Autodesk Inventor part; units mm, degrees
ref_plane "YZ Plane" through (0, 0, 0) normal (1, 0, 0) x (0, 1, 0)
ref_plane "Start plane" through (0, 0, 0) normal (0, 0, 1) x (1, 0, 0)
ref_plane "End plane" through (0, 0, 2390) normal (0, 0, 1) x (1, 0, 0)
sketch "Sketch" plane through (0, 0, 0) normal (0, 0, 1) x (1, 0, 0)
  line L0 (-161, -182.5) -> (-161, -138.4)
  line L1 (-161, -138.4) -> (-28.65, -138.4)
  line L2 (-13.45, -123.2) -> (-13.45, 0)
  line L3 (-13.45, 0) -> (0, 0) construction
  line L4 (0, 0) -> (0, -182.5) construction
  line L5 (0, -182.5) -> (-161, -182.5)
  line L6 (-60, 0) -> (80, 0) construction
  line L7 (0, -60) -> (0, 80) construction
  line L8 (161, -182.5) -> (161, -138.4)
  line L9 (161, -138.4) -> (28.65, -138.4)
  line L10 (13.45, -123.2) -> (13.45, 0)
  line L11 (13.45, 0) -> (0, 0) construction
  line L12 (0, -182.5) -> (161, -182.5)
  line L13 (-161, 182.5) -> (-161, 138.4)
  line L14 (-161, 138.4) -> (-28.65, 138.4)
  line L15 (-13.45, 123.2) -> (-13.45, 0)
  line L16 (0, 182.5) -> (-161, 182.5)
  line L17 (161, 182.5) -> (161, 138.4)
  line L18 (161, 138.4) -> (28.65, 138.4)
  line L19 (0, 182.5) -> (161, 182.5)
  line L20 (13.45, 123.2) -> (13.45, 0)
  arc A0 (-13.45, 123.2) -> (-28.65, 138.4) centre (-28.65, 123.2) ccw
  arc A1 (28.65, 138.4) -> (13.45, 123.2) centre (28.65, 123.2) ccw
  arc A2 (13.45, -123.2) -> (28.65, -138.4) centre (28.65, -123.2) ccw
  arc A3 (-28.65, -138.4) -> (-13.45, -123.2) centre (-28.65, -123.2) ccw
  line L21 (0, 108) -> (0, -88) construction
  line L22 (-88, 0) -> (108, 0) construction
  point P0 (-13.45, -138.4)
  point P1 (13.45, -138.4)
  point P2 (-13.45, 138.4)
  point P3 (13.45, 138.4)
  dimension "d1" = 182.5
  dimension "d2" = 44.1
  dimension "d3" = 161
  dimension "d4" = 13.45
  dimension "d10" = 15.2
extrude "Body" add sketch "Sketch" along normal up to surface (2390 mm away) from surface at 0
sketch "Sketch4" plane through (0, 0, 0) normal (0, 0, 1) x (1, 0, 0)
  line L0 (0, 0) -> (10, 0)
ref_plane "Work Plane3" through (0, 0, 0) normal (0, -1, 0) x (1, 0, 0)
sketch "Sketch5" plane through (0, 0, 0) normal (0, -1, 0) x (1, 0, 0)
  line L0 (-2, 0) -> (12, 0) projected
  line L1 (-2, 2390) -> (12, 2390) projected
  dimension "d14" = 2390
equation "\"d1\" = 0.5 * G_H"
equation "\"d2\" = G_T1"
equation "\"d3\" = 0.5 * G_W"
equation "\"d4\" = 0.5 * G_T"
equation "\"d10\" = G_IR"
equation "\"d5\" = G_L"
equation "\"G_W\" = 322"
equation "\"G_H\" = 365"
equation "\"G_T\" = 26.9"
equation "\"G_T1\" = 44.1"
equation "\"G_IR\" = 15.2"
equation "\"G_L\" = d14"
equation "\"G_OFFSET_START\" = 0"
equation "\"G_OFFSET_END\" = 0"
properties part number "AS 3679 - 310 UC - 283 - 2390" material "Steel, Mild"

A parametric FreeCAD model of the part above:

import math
import FreeCAD as App
import Part
import Sketcher

doc = App.newDocument("Part")
body = doc.addObject("PartDesign::Body", "Body")

# Sketch on XY plane
sketch1 = body.newObject("Sketcher::SketchObject", "Sketch")
sketch1.AttachmentSupport = (doc.getObject("XY_Plane"), [""])
sketch1.MapMode = "FlatFace"
sketch1.addGeometry([
    Part.LineSegment(App.Vector(-161, -138, 0), App.Vector(-161, -182, 0)),  # 0
    Part.LineSegment(App.Vector(-161, -182, 0), App.Vector(161, -182, 0)),  # 1
    Part.LineSegment(App.Vector(161, -182, 0), App.Vector(161, -138, 0)),  # 2
    Part.LineSegment(App.Vector(161, -138, 0), App.Vector(29, -138, 0)),  # 3
    Part.ArcOfCircle(Part.Circle(App.Vector(29, -123, 0), App.Vector(0, 0, 1), 15), math.radians(180), math.radians(270)),  # 4
    Part.LineSegment(App.Vector(13, -123, 0), App.Vector(13, 123, 0)),  # 5
    Part.ArcOfCircle(Part.Circle(App.Vector(29, 123, 0), App.Vector(0, 0, 1), 15), math.radians(90), math.radians(180)),  # 6
    Part.LineSegment(App.Vector(29, 138, 0), App.Vector(161, 138, 0)),  # 7
    Part.LineSegment(App.Vector(161, 138, 0), App.Vector(161, 182, 0)),  # 8
    Part.LineSegment(App.Vector(161, 182, 0), App.Vector(-161, 182, 0)),  # 9
    Part.LineSegment(App.Vector(-161, 182, 0), App.Vector(-161, 138, 0)),  # 10
    Part.LineSegment(App.Vector(-161, 138, 0), App.Vector(-29, 138, 0)),  # 11
    Part.ArcOfCircle(Part.Circle(App.Vector(-29, 123, 0), App.Vector(0, 0, 1), 15), math.radians(0), math.radians(90)),  # 12
    Part.LineSegment(App.Vector(-13, 123, 0), App.Vector(-13, -123, 0)),  # 13
    Part.ArcOfCircle(Part.Circle(App.Vector(-29, -123, 0), App.Vector(0, 0, 1), 15), math.radians(-90), math.radians(0)),  # 14
    Part.LineSegment(App.Vector(-29, -138, 0), App.Vector(-161, -138, 0)),  # 15
], False)
sketch1.addConstraint([
    Sketcher.Constraint("Coincident", 0, 2, 1, 1),
    Sketcher.Constraint("Coincident", 1, 2, 2, 1),
    Sketcher.Constraint("Coincident", 2, 2, 3, 1),
    Sketcher.Constraint("Tangent", 3, 2, 4, 2),
    Sketcher.Constraint("Tangent", 4, 1, 5, 1),
    Sketcher.Constraint("Tangent", 5, 2, 6, 2),
    Sketcher.Constraint("Tangent", 6, 1, 7, 1),
    Sketcher.Constraint("Coincident", 7, 2, 8, 1),
    Sketcher.Constraint("Coincident", 8, 2, 9, 1),
    Sketcher.Constraint("Coincident", 9, 2, 10, 1),
    Sketcher.Constraint("Coincident", 10, 2, 11, 1),
    Sketcher.Constraint("Tangent", 11, 2, 12, 2),
    Sketcher.Constraint("Tangent", 12, 1, 13, 1),
    Sketcher.Constraint("Tangent", 13, 2, 14, 2),
    Sketcher.Constraint("Tangent", 14, 1, 15, 1),
    Sketcher.Constraint("Coincident", 15, 2, 0, 1),
    Sketcher.Constraint("Vertical", 0),
    Sketcher.Constraint("Horizontal", 1),
    Sketcher.Constraint("Vertical", 2),
    Sketcher.Constraint("Horizontal", 3),
    Sketcher.Constraint("Vertical", 5),
    Sketcher.Constraint("Horizontal", 7),
    Sketcher.Constraint("Vertical", 8),
    Sketcher.Constraint("Horizontal", 9),
    Sketcher.Constraint("Vertical", 10),
    Sketcher.Constraint("Horizontal", 11),
    Sketcher.Constraint("Vertical", 13),
    Sketcher.Constraint("Horizontal", 15),
    Sketcher.Constraint("Equal", 4, 6),
    Sketcher.Constraint("Equal", 6, 12),
    Sketcher.Constraint("Equal", 12, 14),
    Sketcher.Constraint("Symmetric", 4, 3, 12, 3, -1, 1),
    Sketcher.Constraint("Symmetric", 0, 2, 8, 2, -1, 1),
    Sketcher.Constraint("Symmetric", 7, 2, 10, 2, -2),
    Sketcher.Constraint("Symmetric", 2, 2, 15, 2, -2),
    Sketcher.Constraint("Radius", 4, 15.2),
    Sketcher.Constraint("DistanceY", 0, 2, 0, 1, 44.1),
    Sketcher.Constraint("DistanceX", 0, 2, -1, 1, 161.0),
    Sketcher.Constraint("DistanceY", 0, 2, -1, 1, 182.5),
    Sketcher.Constraint("DistanceX", -1, 1, 4, 1, 13.45),
])
pad1 = body.newObject("PartDesign::Pad", "Pad")
pad1.Profile = sketch1
pad1.Length = 2390

doc.recompute()
